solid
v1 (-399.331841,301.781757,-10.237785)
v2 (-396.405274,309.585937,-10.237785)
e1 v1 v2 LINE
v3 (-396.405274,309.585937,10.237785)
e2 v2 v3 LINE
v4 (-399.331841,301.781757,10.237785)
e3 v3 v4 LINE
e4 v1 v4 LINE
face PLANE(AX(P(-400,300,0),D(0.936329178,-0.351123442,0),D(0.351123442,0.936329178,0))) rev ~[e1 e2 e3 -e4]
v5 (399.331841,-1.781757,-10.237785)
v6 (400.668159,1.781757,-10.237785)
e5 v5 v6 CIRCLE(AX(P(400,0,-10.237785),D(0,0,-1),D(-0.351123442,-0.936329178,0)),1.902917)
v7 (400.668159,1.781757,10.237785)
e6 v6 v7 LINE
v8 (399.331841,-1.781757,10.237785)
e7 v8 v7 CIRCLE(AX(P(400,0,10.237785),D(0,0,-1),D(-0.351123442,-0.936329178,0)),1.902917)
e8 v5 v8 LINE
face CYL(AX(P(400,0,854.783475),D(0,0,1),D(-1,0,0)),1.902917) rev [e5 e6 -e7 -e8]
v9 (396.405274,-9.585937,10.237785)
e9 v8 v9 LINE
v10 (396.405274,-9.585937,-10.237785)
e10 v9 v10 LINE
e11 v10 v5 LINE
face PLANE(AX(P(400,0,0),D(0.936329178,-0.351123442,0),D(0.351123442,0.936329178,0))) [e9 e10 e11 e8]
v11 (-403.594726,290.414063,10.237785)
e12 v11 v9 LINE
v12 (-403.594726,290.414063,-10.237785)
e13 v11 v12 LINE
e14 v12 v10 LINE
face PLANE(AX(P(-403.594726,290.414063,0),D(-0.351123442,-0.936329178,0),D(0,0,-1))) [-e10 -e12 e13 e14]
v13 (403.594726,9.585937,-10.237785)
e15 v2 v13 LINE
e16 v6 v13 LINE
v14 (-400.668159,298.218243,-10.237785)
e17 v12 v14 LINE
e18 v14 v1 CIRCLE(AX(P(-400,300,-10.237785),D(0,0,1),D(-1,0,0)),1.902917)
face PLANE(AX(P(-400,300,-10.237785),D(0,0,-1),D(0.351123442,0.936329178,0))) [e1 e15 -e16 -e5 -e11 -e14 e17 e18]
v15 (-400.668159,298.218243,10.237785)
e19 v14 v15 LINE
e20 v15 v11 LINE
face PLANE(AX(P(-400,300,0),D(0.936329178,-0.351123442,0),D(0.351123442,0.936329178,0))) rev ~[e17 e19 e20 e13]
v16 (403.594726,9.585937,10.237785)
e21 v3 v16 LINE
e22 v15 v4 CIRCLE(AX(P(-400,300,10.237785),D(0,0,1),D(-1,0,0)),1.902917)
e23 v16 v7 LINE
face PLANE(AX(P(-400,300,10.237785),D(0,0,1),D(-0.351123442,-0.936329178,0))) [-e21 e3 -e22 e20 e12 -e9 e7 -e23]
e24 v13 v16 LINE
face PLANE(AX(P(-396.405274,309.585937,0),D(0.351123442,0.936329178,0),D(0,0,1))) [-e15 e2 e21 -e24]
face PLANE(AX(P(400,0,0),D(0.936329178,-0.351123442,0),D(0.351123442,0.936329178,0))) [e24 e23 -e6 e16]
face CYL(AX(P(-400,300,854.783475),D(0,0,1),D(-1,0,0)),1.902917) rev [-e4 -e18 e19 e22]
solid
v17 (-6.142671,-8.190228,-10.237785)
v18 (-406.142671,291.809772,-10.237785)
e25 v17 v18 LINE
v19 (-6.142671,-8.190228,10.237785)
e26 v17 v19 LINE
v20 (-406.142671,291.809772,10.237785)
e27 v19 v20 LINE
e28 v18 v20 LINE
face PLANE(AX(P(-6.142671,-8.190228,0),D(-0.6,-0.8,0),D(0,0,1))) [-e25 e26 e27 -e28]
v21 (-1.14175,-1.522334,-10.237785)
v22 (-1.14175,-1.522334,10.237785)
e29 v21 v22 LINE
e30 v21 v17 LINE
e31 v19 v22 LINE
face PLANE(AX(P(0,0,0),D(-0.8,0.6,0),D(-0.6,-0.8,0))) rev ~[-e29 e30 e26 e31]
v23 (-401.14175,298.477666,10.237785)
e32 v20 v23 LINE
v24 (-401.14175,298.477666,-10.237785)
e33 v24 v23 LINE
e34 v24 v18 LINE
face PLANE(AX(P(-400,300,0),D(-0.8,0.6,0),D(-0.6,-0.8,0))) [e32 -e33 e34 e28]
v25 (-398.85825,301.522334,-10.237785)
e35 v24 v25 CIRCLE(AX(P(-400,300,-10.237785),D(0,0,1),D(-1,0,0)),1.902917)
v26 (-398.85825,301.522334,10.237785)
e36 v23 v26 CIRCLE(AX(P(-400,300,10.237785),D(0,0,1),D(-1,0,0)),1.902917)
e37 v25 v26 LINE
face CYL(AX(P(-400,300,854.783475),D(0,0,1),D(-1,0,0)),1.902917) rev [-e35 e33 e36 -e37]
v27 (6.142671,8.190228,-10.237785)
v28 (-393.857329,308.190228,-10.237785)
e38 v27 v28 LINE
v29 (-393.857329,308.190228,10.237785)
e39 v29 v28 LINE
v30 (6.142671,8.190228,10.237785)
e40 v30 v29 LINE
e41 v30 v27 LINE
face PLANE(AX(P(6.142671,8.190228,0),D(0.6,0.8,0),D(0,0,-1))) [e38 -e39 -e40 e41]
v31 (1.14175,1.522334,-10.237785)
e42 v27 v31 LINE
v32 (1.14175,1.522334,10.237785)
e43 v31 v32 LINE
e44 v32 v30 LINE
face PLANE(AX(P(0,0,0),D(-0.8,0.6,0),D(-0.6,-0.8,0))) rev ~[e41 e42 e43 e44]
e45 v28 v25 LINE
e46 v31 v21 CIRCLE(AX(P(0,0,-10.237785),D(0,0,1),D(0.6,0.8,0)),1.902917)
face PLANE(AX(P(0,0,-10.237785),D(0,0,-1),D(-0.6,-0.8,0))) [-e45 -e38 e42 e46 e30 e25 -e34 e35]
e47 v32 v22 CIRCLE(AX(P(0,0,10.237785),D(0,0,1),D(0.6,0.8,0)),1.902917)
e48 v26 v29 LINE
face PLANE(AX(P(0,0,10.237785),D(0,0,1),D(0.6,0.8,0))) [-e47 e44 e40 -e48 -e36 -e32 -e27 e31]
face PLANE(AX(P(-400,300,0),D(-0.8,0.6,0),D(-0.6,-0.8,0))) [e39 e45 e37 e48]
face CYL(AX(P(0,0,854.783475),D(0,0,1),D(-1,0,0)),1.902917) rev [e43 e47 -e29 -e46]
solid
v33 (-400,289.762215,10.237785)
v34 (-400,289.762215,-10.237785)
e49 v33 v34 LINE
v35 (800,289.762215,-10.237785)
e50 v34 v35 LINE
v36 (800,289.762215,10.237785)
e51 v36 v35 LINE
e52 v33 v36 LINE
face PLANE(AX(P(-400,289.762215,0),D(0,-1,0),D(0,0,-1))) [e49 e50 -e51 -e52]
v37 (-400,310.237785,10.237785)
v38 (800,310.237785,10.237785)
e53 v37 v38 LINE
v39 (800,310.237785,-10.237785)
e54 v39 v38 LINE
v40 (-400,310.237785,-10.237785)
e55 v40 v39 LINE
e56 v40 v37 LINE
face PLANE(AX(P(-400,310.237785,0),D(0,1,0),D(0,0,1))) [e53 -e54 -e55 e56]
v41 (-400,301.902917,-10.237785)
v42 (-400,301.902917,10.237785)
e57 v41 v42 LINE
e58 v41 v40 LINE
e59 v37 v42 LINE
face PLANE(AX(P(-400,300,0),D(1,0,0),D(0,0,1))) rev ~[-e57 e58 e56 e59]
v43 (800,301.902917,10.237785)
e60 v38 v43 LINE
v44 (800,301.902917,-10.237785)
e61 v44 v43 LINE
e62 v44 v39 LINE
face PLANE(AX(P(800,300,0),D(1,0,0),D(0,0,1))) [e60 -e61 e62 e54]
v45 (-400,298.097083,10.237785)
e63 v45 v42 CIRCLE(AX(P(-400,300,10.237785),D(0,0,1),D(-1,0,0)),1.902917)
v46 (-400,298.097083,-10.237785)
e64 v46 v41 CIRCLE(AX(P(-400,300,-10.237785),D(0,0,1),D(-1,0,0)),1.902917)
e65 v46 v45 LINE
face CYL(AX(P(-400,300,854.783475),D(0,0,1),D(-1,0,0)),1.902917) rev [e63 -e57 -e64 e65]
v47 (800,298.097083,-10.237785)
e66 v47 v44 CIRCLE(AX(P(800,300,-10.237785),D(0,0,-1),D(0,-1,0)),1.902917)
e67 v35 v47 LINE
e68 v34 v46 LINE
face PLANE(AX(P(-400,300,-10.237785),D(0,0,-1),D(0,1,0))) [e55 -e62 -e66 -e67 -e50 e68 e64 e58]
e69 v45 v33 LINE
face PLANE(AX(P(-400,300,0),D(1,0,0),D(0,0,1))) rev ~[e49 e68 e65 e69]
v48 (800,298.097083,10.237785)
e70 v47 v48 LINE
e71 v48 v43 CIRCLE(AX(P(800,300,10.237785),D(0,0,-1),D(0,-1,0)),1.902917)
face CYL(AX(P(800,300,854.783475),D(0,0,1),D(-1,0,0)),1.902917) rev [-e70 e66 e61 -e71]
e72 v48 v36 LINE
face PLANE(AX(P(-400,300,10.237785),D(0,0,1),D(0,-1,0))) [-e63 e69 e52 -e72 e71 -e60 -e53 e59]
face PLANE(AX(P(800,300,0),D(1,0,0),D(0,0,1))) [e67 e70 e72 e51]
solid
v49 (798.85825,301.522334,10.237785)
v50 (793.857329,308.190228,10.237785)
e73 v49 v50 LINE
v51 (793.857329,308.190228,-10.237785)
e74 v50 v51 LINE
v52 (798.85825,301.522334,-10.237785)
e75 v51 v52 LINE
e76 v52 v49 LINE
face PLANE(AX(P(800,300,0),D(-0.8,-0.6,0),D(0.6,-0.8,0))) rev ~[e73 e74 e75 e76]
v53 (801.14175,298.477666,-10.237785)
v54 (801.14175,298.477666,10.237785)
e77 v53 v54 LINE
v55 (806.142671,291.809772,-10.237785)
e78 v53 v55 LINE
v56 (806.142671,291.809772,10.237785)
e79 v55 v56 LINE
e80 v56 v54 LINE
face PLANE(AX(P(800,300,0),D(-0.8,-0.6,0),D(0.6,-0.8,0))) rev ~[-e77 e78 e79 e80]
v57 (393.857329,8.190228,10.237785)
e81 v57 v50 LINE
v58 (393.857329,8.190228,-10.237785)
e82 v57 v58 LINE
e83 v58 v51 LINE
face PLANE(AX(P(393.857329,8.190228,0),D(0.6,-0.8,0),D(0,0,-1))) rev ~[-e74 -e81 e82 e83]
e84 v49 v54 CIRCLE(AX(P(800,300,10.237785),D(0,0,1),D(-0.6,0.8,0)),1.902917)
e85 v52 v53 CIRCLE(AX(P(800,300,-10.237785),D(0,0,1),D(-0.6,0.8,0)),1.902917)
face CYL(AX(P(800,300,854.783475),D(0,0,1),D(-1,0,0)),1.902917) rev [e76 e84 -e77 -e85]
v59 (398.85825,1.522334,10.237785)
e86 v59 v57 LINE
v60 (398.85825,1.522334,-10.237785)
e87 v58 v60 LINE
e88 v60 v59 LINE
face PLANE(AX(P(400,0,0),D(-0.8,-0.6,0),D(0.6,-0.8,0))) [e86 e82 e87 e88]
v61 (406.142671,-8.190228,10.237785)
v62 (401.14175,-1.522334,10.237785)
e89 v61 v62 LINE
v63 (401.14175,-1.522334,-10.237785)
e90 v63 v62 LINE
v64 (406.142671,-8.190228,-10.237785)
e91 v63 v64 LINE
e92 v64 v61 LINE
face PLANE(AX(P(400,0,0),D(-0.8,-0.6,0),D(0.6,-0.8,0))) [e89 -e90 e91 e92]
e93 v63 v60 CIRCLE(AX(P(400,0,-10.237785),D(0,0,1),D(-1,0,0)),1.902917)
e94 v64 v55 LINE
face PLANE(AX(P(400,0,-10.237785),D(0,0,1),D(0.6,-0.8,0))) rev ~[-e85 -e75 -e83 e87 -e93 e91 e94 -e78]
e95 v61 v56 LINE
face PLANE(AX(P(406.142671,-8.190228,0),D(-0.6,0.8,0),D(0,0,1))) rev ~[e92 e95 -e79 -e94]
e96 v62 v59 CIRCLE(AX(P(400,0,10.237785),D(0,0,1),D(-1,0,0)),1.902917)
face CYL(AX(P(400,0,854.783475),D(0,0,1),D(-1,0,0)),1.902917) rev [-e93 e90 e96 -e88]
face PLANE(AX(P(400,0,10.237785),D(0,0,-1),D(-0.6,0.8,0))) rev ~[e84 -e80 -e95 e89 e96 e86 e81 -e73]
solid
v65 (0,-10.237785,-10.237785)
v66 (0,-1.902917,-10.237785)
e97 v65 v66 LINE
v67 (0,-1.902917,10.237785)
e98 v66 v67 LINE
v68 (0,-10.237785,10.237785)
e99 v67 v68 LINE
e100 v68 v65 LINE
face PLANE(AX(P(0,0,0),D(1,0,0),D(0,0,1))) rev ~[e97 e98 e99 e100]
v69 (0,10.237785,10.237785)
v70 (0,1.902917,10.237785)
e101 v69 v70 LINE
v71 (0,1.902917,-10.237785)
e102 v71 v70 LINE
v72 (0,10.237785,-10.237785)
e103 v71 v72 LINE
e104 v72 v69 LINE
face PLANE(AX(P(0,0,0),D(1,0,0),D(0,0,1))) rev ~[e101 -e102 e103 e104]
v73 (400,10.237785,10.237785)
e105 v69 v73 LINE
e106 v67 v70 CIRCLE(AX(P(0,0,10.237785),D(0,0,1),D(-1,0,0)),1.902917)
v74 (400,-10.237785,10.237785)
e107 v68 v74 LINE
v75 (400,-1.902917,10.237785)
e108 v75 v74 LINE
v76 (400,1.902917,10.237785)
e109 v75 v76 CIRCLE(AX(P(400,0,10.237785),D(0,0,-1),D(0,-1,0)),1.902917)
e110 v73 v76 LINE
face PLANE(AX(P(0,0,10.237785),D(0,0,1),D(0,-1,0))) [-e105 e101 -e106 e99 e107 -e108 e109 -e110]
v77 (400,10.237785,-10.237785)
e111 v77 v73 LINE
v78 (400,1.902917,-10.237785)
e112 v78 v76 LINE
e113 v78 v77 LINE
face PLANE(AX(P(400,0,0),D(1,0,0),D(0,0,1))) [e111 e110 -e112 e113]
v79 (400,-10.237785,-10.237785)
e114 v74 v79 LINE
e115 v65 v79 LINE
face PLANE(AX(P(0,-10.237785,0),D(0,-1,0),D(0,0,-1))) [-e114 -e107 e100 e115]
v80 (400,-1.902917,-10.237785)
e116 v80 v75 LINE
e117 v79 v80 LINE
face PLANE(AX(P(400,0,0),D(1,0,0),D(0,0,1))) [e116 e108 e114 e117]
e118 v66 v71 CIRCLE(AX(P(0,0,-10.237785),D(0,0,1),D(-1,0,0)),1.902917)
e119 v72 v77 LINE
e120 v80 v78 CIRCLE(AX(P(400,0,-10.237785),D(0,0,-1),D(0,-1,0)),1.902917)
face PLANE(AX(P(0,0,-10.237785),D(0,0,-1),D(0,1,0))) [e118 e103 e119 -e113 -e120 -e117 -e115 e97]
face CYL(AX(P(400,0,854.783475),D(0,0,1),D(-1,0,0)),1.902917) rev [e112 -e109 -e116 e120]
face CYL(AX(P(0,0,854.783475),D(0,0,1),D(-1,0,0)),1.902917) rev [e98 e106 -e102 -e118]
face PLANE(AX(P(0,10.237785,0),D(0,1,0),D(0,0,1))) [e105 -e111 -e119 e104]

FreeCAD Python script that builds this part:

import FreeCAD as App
import Part
import Sketcher
from FreeCAD import Vector
Q = App.Units.Quantity

doc = App.newDocument("Part")
body = doc.addObject("PartDesign::Body", "Body")

# Sketch on YZ plane
sketch1 = body.newObject("Sketcher::SketchObject", "Sketch")
sketch1.AttachmentSupport = (doc.getObject("YZ_Plane"), [""])
sketch1.MapMode = "FlatFace"
sketch1.addGeometry(Part.LineSegment(Vector(310, 10, 0), Vector(290, 10, 0)), False)
sketch1.addGeometry(Part.LineSegment(Vector(290, 10, 0), Vector(290, -10, 0)), False)
sketch1.addGeometry(Part.LineSegment(Vector(290, -10, 0), Vector(310, -10, 0)), False)
sketch1.addGeometry(Part.LineSegment(Vector(310, -10, 0), Vector(310, 10, 0)), False)
sketch1.addConstraint(Sketcher.Constraint("Coincident", 0, 2, 1, 1))
sketch1.addConstraint(Sketcher.Constraint("Coincident", 1, 2, 2, 1))
sketch1.addConstraint(Sketcher.Constraint("Coincident", 2, 2, 3, 1))
sketch1.addConstraint(Sketcher.Constraint("Coincident", 3, 2, 0, 1))
sketch1.addConstraint(Sketcher.Constraint("Horizontal", 0))
sketch1.addConstraint(Sketcher.Constraint("Vertical", 1))
sketch1.addConstraint(Sketcher.Constraint("Horizontal", 2))
sketch1.addConstraint(Sketcher.Constraint("Vertical", 3))
sketch1.addConstraint(Sketcher.Constraint("Equal", 2, 1))
sketch1.addConstraint(Sketcher.Constraint("DistanceX", 0, 2, 0, 1, Q("20.475571 mm")))
sketch1.addConstraint(Sketcher.Constraint("DistanceX", -1, 1, 0, 2, Q("289.762215 mm")))
sketch1.addConstraint(Sketcher.Constraint("DistanceY", -1, 1, 0, 2, Q("10.237785 mm")))

# Sketch on XY plane
sketch2 = body.newObject("Sketcher::SketchObject", "Sketch001")
sketch2.AttachmentSupport = (doc.getObject("XY_Plane"), [""])
sketch2.MapMode = "FlatFace"
sketch2.addGeometry(Part.LineSegment(Vector(-400, 300, 0), Vector(800, 300, 0)), False)
sketch2.addConstraint(Sketcher.Constraint("Horizontal", 0))
sketch2.addConstraint(Sketcher.Constraint("DistanceX", 0, 1, 0, 2, Q("1200 mm")))
sketch2.addConstraint(Sketcher.Constraint("DistanceX", 0, 1, -1, 1, Q("400 mm")))
sketch2.addConstraint(Sketcher.Constraint("DistanceY", -1, 1, 0, 1, Q("300 mm")))
doc.recompute()

additivepipe = body.newObject("PartDesign::AdditivePipe", "AdditivePipe")
additivepipe.Profile = sketch1
additivepipe.Spine = (sketch2, ["Edge1"])
body2 = doc.addObject("PartDesign::Body", "Body001")

# Sketch on YZ plane
sketch3 = body2.newObject("Sketcher::SketchObject", "Sketch002")
sketch3.AttachmentSupport = (doc.getObject("YZ_Plane001"), [""])
sketch3.MapMode = "FlatFace"
sketch3.addGeometry(Part.LineSegment(Vector(10, 10, 0), Vector(-10, 10, 0)), False)
sketch3.addGeometry(Part.LineSegment(Vector(-10, 10, 0), Vector(-10, -10, 0)), False)
sketch3.addGeometry(Part.LineSegment(Vector(-10, -10, 0), Vector(10, -10, 0)), False)
sketch3.addGeometry(Part.LineSegment(Vector(10, -10, 0), Vector(10, 10, 0)), False)
sketch3.addConstraint(Sketcher.Constraint("Coincident", 0, 2, 1, 1))
sketch3.addConstraint(Sketcher.Constraint("Coincident", 1, 2, 2, 1))
sketch3.addConstraint(Sketcher.Constraint("Coincident", 2, 2, 3, 1))
sketch3.addConstraint(Sketcher.Constraint("Coincident", 3, 2, 0, 1))
sketch3.addConstraint(Sketcher.Constraint("Horizontal", 0))
sketch3.addConstraint(Sketcher.Constraint("Vertical", 1))
sketch3.addConstraint(Sketcher.Constraint("Horizontal", 2))
sketch3.addConstraint(Sketcher.Constraint("Vertical", 3))
sketch3.addConstraint(Sketcher.Constraint("Symmetric", 0, 2, 2, 2, -1, 1))
sketch3.addConstraint(Sketcher.Constraint("Equal", 2, 1))
sketch3.addConstraint(Sketcher.Constraint("DistanceX", 0, 2, 0, 1, Q("20.475571 mm")))

# Sketch on XY plane
sketch4 = body2.newObject("Sketcher::SketchObject", "Sketch003")
sketch4.AttachmentSupport = (doc.getObject("XY_Plane001"), [""])
sketch4.MapMode = "FlatFace"
sketch4.addGeometry(Part.LineSegment(Vector(0, 0, 0), Vector(400, 0, 0)), False)
sketch4.addConstraint(Sketcher.Constraint("Horizontal", 0))
sketch4.addConstraint(Sketcher.Constraint("Coincident", 0, 1, -1, 1))
sketch4.addConstraint(Sketcher.Constraint("DistanceX", 0, 1, 0, 2, Q("400 mm")))
doc.recompute()

additivepipe2 = body2.newObject("PartDesign::AdditivePipe", "AdditivePipe001")
additivepipe2.Profile = sketch3
additivepipe2.Spine = (sketch4, ["Edge1"])
body3 = doc.addObject("PartDesign::Body", "Body002")

# Sketch on an angled plane
sketch5 = body3.newObject("Sketcher::SketchObject", "Sketch004")
sketch5.Placement = App.Placement(Vector(800, 300, 0), App.Rotation(Vector(0, 0, 1), Vector(-0.6, 0.8, 0), Vector(-0.8, -0.6, 0), "ZXY"))
sketch5.addGeometry(Part.LineSegment(Vector(-10, 10, 0), Vector(-10, -10, 0)), False)
sketch5.addGeometry(Part.LineSegment(Vector(-10, -10, 0), Vector(10, -10, 0)), False)
sketch5.addGeometry(Part.LineSegment(Vector(10, -10, 0), Vector(10, 10, 0)), False)
sketch5.addGeometry(Part.LineSegment(Vector(10, 10, 0), Vector(-10, 10, 0)), False)
sketch5.addConstraint(Sketcher.Constraint("Coincident", 0, 2, 1, 1))
sketch5.addConstraint(Sketcher.Constraint("Coincident", 1, 2, 2, 1))
sketch5.addConstraint(Sketcher.Constraint("Coincident", 2, 2, 3, 1))
sketch5.addConstraint(Sketcher.Constraint("Coincident", 3, 2, 0, 1))
sketch5.addConstraint(Sketcher.Constraint("Vertical", 0))
sketch5.addConstraint(Sketcher.Constraint("Horizontal", 1))
sketch5.addConstraint(Sketcher.Constraint("Vertical", 2))
sketch5.addConstraint(Sketcher.Constraint("Horizontal", 3))
sketch5.addConstraint(Sketcher.Constraint("Symmetric", 0, 2, 2, 2, -1, 1))
sketch5.addConstraint(Sketcher.Constraint("Equal", 3, 0))
sketch5.addConstraint(Sketcher.Constraint("DistanceX", 1, 1, 1, 2, Q("20.475571 mm")))

# Sketch on an angled plane
sketch6 = body3.newObject("Sketcher::SketchObject", "Sketch005")
sketch6.Placement = App.Placement(Vector(144, -192, 0), App.Rotation(Vector(0.8, 0.6, 0), Vector(0, 0, 1), Vector(0.6, -0.8, 0), "ZXY"))
sketch6.addGeometry(Part.LineSegment(Vector(320, 0, 0), Vector(820, 0, 0)), False)
sketch6.addConstraint(Sketcher.Constraint("Horizontal", 0))
sketch6.addConstraint(Sketcher.Constraint("PointOnObject", 0, 1, -1))
sketch6.addConstraint(Sketcher.Constraint("DistanceX", 0, 1, 0, 2, Q("500 mm")))
sketch6.addConstraint(Sketcher.Constraint("DistanceX", -1, 1, 0, 1, Q("320 mm")))
doc.recompute()

additivepipe3 = body3.newObject("PartDesign::AdditivePipe", "AdditivePipe002")
additivepipe3.Profile = sketch5
additivepipe3.Spine = (sketch6, ["Edge1"])
body4 = doc.addObject("PartDesign::Body", "Body003")

# Sketch on an angled plane
sketch7 = body4.newObject("Sketcher::SketchObject", "Sketch006")
sketch7.Placement = App.Placement(Vector(400, 0, 0), App.Rotation(Vector(0, 0, -1), Vector(0.351123442, 0.936329178, 0), Vector(0.936329178, -0.351123442, 0), "ZXY"))
sketch7.addGeometry(Part.LineSegment(Vector(-10, 10, 0), Vector(-10, -10, 0)), False)
sketch7.addGeometry(Part.LineSegment(Vector(-10, -10, 0), Vector(10, -10, 0)), False)
sketch7.addGeometry(Part.LineSegment(Vector(10, -10, 0), Vector(10, 10, 0)), False)
sketch7.addGeometry(Part.LineSegment(Vector(10, 10, 0), Vector(-10, 10, 0)), False)
sketch7.addConstraint(Sketcher.Constraint("Coincident", 0, 2, 1, 1))
sketch7.addConstraint(Sketcher.Constraint("Coincident", 1, 2, 2, 1))
sketch7.addConstraint(Sketcher.Constraint("Coincident", 2, 2, 3, 1))
sketch7.addConstraint(Sketcher.Constraint("Coincident", 3, 2, 0, 1))
sketch7.addConstraint(Sketcher.Constraint("Vertical", 0))
sketch7.addConstraint(Sketcher.Constraint("Horizontal", 1))
sketch7.addConstraint(Sketcher.Constraint("Vertical", 2))
sketch7.addConstraint(Sketcher.Constraint("Horizontal", 3))
sketch7.addConstraint(Sketcher.Constraint("Symmetric", 0, 2, 2, 2, -1, 1))
sketch7.addConstraint(Sketcher.Constraint("Equal", 3, 0))
sketch7.addConstraint(Sketcher.Constraint("DistanceX", 1, 1, 1, 2, Q("20.475571 mm")))

# Sketch on an angled plane
sketch8 = body4.newObject("Sketcher::SketchObject", "Sketch007")
sketch8.Placement = App.Placement(Vector(49.315068, 131.506849, 0), App.Rotation(Vector(0.936329178, -0.351123442, 0), Vector(0, 0, 1.000000001), Vector(-0.351123442, -0.936329178, 0), "ZXY"))
sketch8.addGeometry(Part.LineSegment(Vector(-480, 0, 0), Vector(375, 0, 0)), False)
sketch8.addConstraint(Sketcher.Constraint("Horizontal", 0))
sketch8.addConstraint(Sketcher.Constraint("PointOnObject", 0, 1, -1))
sketch8.addConstraint(Sketcher.Constraint("DistanceX", 0, 1, 0, 2, Q("854.400375 mm")))
sketch8.addConstraint(Sketcher.Constraint("DistanceX", -1, 1, 0, 2, Q("374.531671 mm")))
doc.recompute()

additivepipe4 = body4.newObject("PartDesign::AdditivePipe", "AdditivePipe003")
additivepipe4.Profile = sketch7
additivepipe4.Spine = (sketch8, ["Edge1"])
body5 = doc.addObject("PartDesign::Body", "Body004")

# Sketch on an angled plane
sketch9 = body5.newObject("Sketcher::SketchObject", "Sketch008")
sketch9.Placement = App.Placement(Vector(-400, 300, 0), App.Rotation(Vector(0, 0, 1), Vector(0.6, 0.8, 0), Vector(-0.8, 0.6, 0), "ZXY"))
sketch9.addGeometry(Part.LineSegment(Vector(-10, 10, 0), Vector(-10, -10, 0)), False)
sketch9.addGeometry(Part.LineSegment(Vector(-10, -10, 0), Vector(10, -10, 0)), False)
sketch9.addGeometry(Part.LineSegment(Vector(10, -10, 0), Vector(10, 10, 0)), False)
sketch9.addGeometry(Part.LineSegment(Vector(10, 10, 0), Vector(-10, 10, 0)), False)
sketch9.addConstraint(Sketcher.Constraint("Coincident", 0, 2, 1, 1))
sketch9.addConstraint(Sketcher.Constraint("Coincident", 1, 2, 2, 1))
sketch9.addConstraint(Sketcher.Constraint("Coincident", 2, 2, 3, 1))
sketch9.addConstraint(Sketcher.Constraint("Coincident", 3, 2, 0, 1))
sketch9.addConstraint(Sketcher.Constraint("Vertical", 0))
sketch9.addConstraint(Sketcher.Constraint("Horizontal", 1))
sketch9.addConstraint(Sketcher.Constraint("Vertical", 2))
sketch9.addConstraint(Sketcher.Constraint("Horizontal", 3))
sketch9.addConstraint(Sketcher.Constraint("Symmetric", 0, 2, 2, 2, -1, 1))
sketch9.addConstraint(Sketcher.Constraint("Equal", 3, 0))
sketch9.addConstraint(Sketcher.Constraint("DistanceX", 1, 1, 1, 2, Q("20.475571 mm")))

# Sketch on an angled plane
sketch10 = body5.newObject("Sketcher::SketchObject", "Sketch009")
sketch10.Placement = App.Placement(Vector(0, 0, 0), App.Rotation(Vector(-0.8, 0.6, 0), Vector(0, 0, 1), Vector(0.6, 0.8, 0), "ZXY"))
sketch10.addGeometry(Part.LineSegment(Vector(0, 0, 0), Vector(500, 0, 0)), False)
sketch10.addConstraint(Sketcher.Constraint("Horizontal", 0))
sketch10.addConstraint(Sketcher.Constraint("Coincident", 0, 1, -1, 1))
sketch10.addConstraint(Sketcher.Constraint("DistanceX", 0, 1, 0, 2, Q("500 mm")))
doc.recompute()

additivepipe5 = body5.newObject("PartDesign::AdditivePipe", "AdditivePipe004")
additivepipe5.Profile = sketch9
additivepipe5.Spine = (sketch10, ["Edge1"])
body6 = doc.addObject("PartDesign::Body", "Body005")
body6.AllowCompound = True

# Sketch on XY plane
sketch11 = body6.newObject("Sketcher::SketchObject", "Sketch010")
sketch11.AttachmentSupport = (doc.getObject("XY_Plane005"), [""])
sketch11.MapMode = "FlatFace"
sketch11.AttachmentOffset = App.Placement(Vector(0, 0, -10.237785), App.Rotation())
sketch11.addGeometry(Part.Circle(Vector(800, 300, 0), Vector(0, 0, 1), 1.9), False)
sketch11.addGeometry(Part.Circle(Vector(400, 0, 0), Vector(0, 0, 1), 1.9), False)
sketch11.addGeometry(Part.Circle(Vector(0, 0, 0), Vector(0, 0, 1), 1.9), False)
sketch11.addGeometry(Part.Circle(Vector(-400, 300, 0), Vector(0, 0, 1), 1.9), False)
sketch11.addConstraint(Sketcher.Constraint("Coincident", 2, 3, -1, 1))
sketch11.addConstraint(Sketcher.Constraint("Equal", 0, 1))
sketch11.addConstraint(Sketcher.Constraint("Equal", 1, 2))
sketch11.addConstraint(Sketcher.Constraint("Equal", 2, 3))
sketch11.addConstraint(Sketcher.Constraint("PointOnObject", 1, 3, -1))
sketch11.addConstraint(Sketcher.Constraint("Horizontal", 0, 3, 3, 3))
sketch11.addConstraint(Sketcher.Constraint("DistanceX", -1, 1, 0, 3, Q("800 mm")))
sketch11.addConstraint(Sketcher.Constraint("DistanceY", -1, 1, 0, 3, Q("300 mm")))
sketch11.addConstraint(Sketcher.Constraint("DistanceX", -1, 1, 1, 3, Q("400 mm")))
sketch11.addConstraint(Sketcher.Constraint("DistanceX", 3, 3, -1, 1, Q("400 mm")))
sketch11.addConstraint(Sketcher.Constraint("Diameter", 0, Q("3.805834 mm")))
pad1 = body6.newObject("PartDesign::Pad", "Pad")
pad1.Profile = sketch11
pad1.Type = "TwoLengths"
pad1.Length = 865.021261
pad1.Length2 = 865.021261
pad1.Reversed = True
doc.recompute()

body7 = doc.addObject("PartDesign::Body", "Body006")
body7.BaseFeature = body6
boolean = body.newObject("PartDesign::Boolean", "Boolean")
boolean.Type = "Cut"
boolean.addObjects([body7])
doc.recompute()

body8 = doc.addObject("PartDesign::Body", "Body007")
body8.BaseFeature = body6
boolean2 = body2.newObject("PartDesign::Boolean", "Boolean001")
boolean2.Type = "Cut"
boolean2.addObjects([body8])
doc.recompute()

body9 = doc.addObject("PartDesign::Body", "Body008")
body9.BaseFeature = body6
boolean3 = body3.newObject("PartDesign::Boolean", "Boolean002")
boolean3.Type = "Cut"
boolean3.addObjects([body9])
doc.recompute()

body10 = doc.addObject("PartDesign::Body", "Body009")
body10.BaseFeature = body6
boolean4 = body4.newObject("PartDesign::Boolean", "Boolean003")
boolean4.Type = "Cut"
boolean4.addObjects([body10])
doc.recompute()

boolean5 = body5.newObject("PartDesign::Boolean", "Boolean004")
boolean5.Type = "Cut"
boolean5.addObjects([body6])

doc.recompute()
